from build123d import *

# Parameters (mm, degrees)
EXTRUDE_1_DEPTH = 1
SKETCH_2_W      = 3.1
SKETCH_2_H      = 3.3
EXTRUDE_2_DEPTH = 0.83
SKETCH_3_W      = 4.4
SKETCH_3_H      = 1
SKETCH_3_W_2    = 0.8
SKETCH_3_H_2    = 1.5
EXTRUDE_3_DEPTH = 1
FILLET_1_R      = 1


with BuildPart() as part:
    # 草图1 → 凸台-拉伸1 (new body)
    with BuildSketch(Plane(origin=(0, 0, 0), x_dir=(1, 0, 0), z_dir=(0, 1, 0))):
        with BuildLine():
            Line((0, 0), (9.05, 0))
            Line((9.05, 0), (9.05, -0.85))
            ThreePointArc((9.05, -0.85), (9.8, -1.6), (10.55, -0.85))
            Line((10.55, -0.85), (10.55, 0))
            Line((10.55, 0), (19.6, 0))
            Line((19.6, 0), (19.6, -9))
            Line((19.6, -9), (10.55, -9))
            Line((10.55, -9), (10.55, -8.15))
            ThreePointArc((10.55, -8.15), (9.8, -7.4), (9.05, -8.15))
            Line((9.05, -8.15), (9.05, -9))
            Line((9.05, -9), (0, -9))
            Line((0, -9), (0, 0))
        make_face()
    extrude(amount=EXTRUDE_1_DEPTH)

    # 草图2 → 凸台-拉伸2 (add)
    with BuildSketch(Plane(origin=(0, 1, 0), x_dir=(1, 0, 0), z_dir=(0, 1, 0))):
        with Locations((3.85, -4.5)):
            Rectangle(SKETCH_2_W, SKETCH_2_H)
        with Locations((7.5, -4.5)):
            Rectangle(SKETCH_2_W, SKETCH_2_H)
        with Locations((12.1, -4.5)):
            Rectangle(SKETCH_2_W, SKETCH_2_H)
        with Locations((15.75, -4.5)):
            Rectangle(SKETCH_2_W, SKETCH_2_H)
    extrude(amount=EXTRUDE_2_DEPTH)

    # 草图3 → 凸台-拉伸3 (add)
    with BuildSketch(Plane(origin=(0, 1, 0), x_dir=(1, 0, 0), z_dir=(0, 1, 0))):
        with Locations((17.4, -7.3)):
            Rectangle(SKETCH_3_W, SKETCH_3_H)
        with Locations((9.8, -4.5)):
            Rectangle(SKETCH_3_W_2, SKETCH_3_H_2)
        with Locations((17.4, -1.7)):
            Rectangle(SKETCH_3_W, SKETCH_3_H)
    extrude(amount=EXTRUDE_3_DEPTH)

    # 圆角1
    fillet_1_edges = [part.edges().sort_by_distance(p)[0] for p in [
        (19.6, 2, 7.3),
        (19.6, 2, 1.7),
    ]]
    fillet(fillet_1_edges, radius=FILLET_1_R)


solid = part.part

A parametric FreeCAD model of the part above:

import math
import FreeCAD as App
import Part
import Sketcher

V = App.Vector
Q = App.Units.Quantity


def edges_at(feature, points):
    """Names of the edges that pass closest to the given points."""
    edges = feature.Shape.Edges
    near = lambda p: min(range(len(edges)), key=lambda i: edges[i].distToShape(Part.Vertex(*p))[0])
    return sorted({f"Edge{near(p) + 1}" for p in points})

doc = App.newDocument("Part")
params = doc.addObject("Spreadsheet::Sheet", "Params")
for row, (alias, value) in enumerate([
    ("sketch1_height", "9 mm"),
    ("sketch1_radius", "0.75 mm"),
    ("sketch1_width", "9.05 mm"),
    ("sketch1_height2", "0.85 mm"),
    ("pad1_length", "1 mm"),
    ("sketch2_width", "3.1 mm"),
    ("sketch2_height", "3.3 mm"),
    ("pad2_length", "0.83 mm"),
    ("sketch3_height", "1 mm"),
    ("sketch3_width", "4.4 mm"),
    ("sketch3_width2", "0.8 mm"),
    ("sketch3_height2", "1.5 mm"),
    ("pad3_length", "1 mm"),
    ("fillet_radius", "1 mm"),
], start=1):
    params.set(f"A{row}", alias)
    params.set(f"B{row}", "=" + value)
    params.setAlias(f"B{row}", alias)

body = doc.addObject("PartDesign::Body", "Body")

# Sketch on XZ plane
sketch1 = body.newObject("Sketcher::SketchObject", "Sketch")
sketch1.AttachmentSupport = (doc.getObject("XZ_Plane"), [""])
sketch1.MapMode = "FlatFace"
sketch1.addGeometry([
    Part.LineSegment(V(9.05, 0, 0), V(0, 0, 0)),  # 0
    Part.LineSegment(V(0, 0, 0), V(0, 9, 0)),  # 1
    Part.LineSegment(V(0, 9, 0), V(9.05, 9, 0)),  # 2
    Part.LineSegment(V(9.05, 9, 0), V(9.05, 8.15, 0)),  # 3
    Part.ArcOfCircle(Part.Circle(V(9.8, 8.15, 0), V(0, 0, 1), 0.75), math.radians(180), math.radians(360)),  # 4
    Part.LineSegment(V(10.55, 8.15, 0), V(10.55, 9, 0)),  # 5
    Part.LineSegment(V(10.55, 9, 0), V(19.6, 9, 0)),  # 6
    Part.LineSegment(V(19.6, 9, 0), V(19.6, 0, 0)),  # 7
    Part.LineSegment(V(19.6, 0, 0), V(10.55, 0, 0)),  # 8
    Part.LineSegment(V(10.55, 0, 0), V(10.55, 0.85, 0)),  # 9
    Part.ArcOfCircle(Part.Circle(V(9.8, 0.85, 0), V(0, 0, 1), 0.75), math.radians(0), math.radians(180)),  # 10
    Part.LineSegment(V(9.05, 0.85, 0), V(9.05, 0, 0)),  # 11
], False)
sketch1.addConstraint([
    Sketcher.Constraint("Coincident", 0, 2, 1, 1),
    Sketcher.Constraint("Coincident", 1, 2, 2, 1),
    Sketcher.Constraint("Coincident", 2, 2, 3, 1),
    Sketcher.Constraint("Tangent", 3, 2, 4, 1),
    Sketcher.Constraint("Tangent", 4, 2, 5, 1),
    Sketcher.Constraint("Coincident", 5, 2, 6, 1),
    Sketcher.Constraint("Coincident", 6, 2, 7, 1),
    Sketcher.Constraint("Coincident", 7, 2, 8, 1),
    Sketcher.Constraint("Coincident", 8, 2, 9, 1),
    Sketcher.Constraint("Tangent", 9, 2, 10, 1),
    Sketcher.Constraint("Tangent", 10, 2, 11, 1),
    Sketcher.Constraint("Coincident", 11, 2, 0, 1),
    Sketcher.Constraint("Horizontal", 0),
    Sketcher.Constraint("Vertical", 1),
    Sketcher.Constraint("Horizontal", 2),
    Sketcher.Constraint("Vertical", 3),
    Sketcher.Constraint("Vertical", 5),
    Sketcher.Constraint("Horizontal", 6),
    Sketcher.Constraint("Vertical", 7),
    Sketcher.Constraint("Horizontal", 8),
    Sketcher.Constraint("Vertical", 9),
    Sketcher.Constraint("Vertical", 11),
    Sketcher.Constraint("Coincident", 0, 2, -1, 1),
    Sketcher.Constraint("Equal", 4, 10),
    Sketcher.Constraint("PointOnObject", 7, 2, -1),
    Sketcher.Constraint("Horizontal", 2, 2, 5, 2),
    Sketcher.Constraint("Vertical", 4, 3, 10, 3),
    Sketcher.Constraint("Equal", 2, 6),
    Sketcher.Constraint("Equal", 5, 9),
    Sketcher.Constraint("DistanceY", 1, 1, 1, 2, Q("9 mm")),
    Sketcher.Constraint("Radius", 4, Q("0.75 mm")),
    Sketcher.Constraint("DistanceX", 0, 2, 0, 1, Q("9.05 mm")),
    Sketcher.Constraint("DistanceY", 3, 2, 3, 1, Q("0.85 mm")),
])
sketch1.setExpression("Constraints[29]", "Params.sketch1_height")
sketch1.setExpression("Constraints[30]", "Params.sketch1_radius")
sketch1.setExpression("Constraints[31]", "Params.sketch1_width")
sketch1.setExpression("Constraints[32]", "Params.sketch1_height2")
pad1 = body.newObject("PartDesign::Pad", "Pad")
pad1.Profile = sketch1
pad1.setExpression("Length", "Params.pad1_length")
pad1.Reversed = True

# Sketch on XZ plane
sketch2 = body.newObject("Sketcher::SketchObject", "Sketch001")
sketch2.AttachmentSupport = (doc.getObject("XZ_Plane"), [""])
sketch2.MapMode = "FlatFace"
sketch2.AttachmentOffset = App.Placement(V(0, 0, -1), App.Rotation())
sketch2.addGeometry([
    Part.LineSegment(V(2.3, 2.85, 0), V(2.3, 6.15, 0)),  # 0
    Part.LineSegment(V(2.3, 6.15, 0), V(5.4, 6.15, 0)),  # 1
    Part.LineSegment(V(5.4, 6.15, 0), V(5.4, 2.85, 0)),  # 2
    Part.LineSegment(V(5.4, 2.85, 0), V(2.3, 2.85, 0)),  # 3
    Part.LineSegment(V(5.95, 2.85, 0), V(5.95, 6.15, 0)),  # 4
    Part.LineSegment(V(5.95, 6.15, 0), V(9.05, 6.15, 0)),  # 5
    Part.LineSegment(V(9.05, 6.15, 0), V(9.05, 2.85, 0)),  # 6
    Part.LineSegment(V(9.05, 2.85, 0), V(5.95, 2.85, 0)),  # 7
    Part.LineSegment(V(10.55, 2.85, 0), V(10.55, 6.15, 0)),  # 8
    Part.LineSegment(V(10.55, 6.15, 0), V(13.65, 6.15, 0)),  # 9
    Part.LineSegment(V(13.65, 6.15, 0), V(13.65, 2.85, 0)),  # 10
    Part.LineSegment(V(13.65, 2.85, 0), V(10.55, 2.85, 0)),  # 11
    Part.LineSegment(V(14.2, 2.85, 0), V(14.2, 6.15, 0)),  # 12
    Part.LineSegment(V(14.2, 6.15, 0), V(17.3, 6.15, 0)),  # 13
    Part.LineSegment(V(17.3, 6.15, 0), V(17.3, 2.85, 0)),  # 14
    Part.LineSegment(V(17.3, 2.85, 0), V(14.2, 2.85, 0)),  # 15
], False)
sketch2.addConstraint([
    Sketcher.Constraint("Coincident", 0, 2, 1, 1),
    Sketcher.Constraint("Coincident", 1, 2, 2, 1),
    Sketcher.Constraint("Coincident", 2, 2, 3, 1),
    Sketcher.Constraint("Coincident", 3, 2, 0, 1),
    Sketcher.Constraint("Coincident", 4, 2, 5, 1),
    Sketcher.Constraint("Coincident", 5, 2, 6, 1),
    Sketcher.Constraint("Coincident", 6, 2, 7, 1),
    Sketcher.Constraint("Coincident", 7, 2, 4, 1),
    Sketcher.Constraint("Coincident", 8, 2, 9, 1),
    Sketcher.Constraint("Coincident", 9, 2, 10, 1),
    Sketcher.Constraint("Coincident", 10, 2, 11, 1),
    Sketcher.Constraint("Coincident", 11, 2, 8, 1),
    Sketcher.Constraint("Coincident", 12, 2, 13, 1),
    Sketcher.Constraint("Coincident", 13, 2, 14, 1),
    Sketcher.Constraint("Coincident", 14, 2, 15, 1),
    Sketcher.Constraint("Coincident", 15, 2, 12, 1),
    Sketcher.Constraint("Vertical", 0),
    Sketcher.Constraint("Horizontal", 1),
    Sketcher.Constraint("Vertical", 2),
    Sketcher.Constraint("Horizontal", 3),
    Sketcher.Constraint("Vertical", 4),
    Sketcher.Constraint("Horizontal", 5),
    Sketcher.Constraint("Vertical", 6),
    Sketcher.Constraint("Horizontal", 7),
    Sketcher.Constraint("Vertical", 8),
    Sketcher.Constraint("Horizontal", 9),
    Sketcher.Constraint("Vertical", 10),
    Sketcher.Constraint("Horizontal", 11),
    Sketcher.Constraint("Vertical", 12),
    Sketcher.Constraint("Horizontal", 13),
    Sketcher.Constraint("Vertical", 14),
    Sketcher.Constraint("Horizontal", 15),
    Sketcher.Constraint("Horizontal", 1, 2, 4, 2),
    Sketcher.Constraint("Horizontal", 3, 2, 6, 2),
    Sketcher.Constraint("Horizontal", 5, 2, 8, 2),
    Sketcher.Constraint("Horizontal", 7, 2, 10, 2),
    Sketcher.Constraint("Horizontal", 9, 2, 12, 2),
    Sketcher.Constraint("Horizontal", 11, 2, 14, 2),
    Sketcher.Constraint("Equal", 3, 5),
    Sketcher.Constraint("Equal", 7, 9),
    Sketcher.Constraint("Equal", 11, 13),
    Sketcher.Constraint("DistanceX", 1, 1, 1, 2, Q("3.1 mm")),
    Sketcher.Constraint("DistanceY", 0, 1, 0, 2, Q("3.3 mm")),
    Sketcher.Constraint("DistanceX", -1, 1, 0, 2, Q("2.3 mm")),
    Sketcher.Constraint("DistanceX", -1, 1, 12, 2, Q("14.2 mm")),
    Sketcher.Constraint("DistanceX", 5, 2, 8, 2, Q("1.5 mm")),
    Sketcher.Constraint("DistanceY", -1, 1, 0, 2, Q("6.15 mm")),
    Sketcher.Constraint("DistanceX", -1, 1, 4, 2, Q("5.95 mm")),
])
sketch2.setExpression("Constraints[41]", "Params.sketch2_width")
sketch2.setExpression("Constraints[42]", "Params.sketch2_height")
pad2 = body.newObject("PartDesign::Pad", "Pad001")
pad2.Profile = sketch2
pad2.setExpression("Length", "Params.pad2_length")
pad2.Reversed = True

# Sketch on XZ plane
sketch3 = body.newObject("Sketcher::SketchObject", "Sketch002")
sketch3.AttachmentSupport = (doc.getObject("XZ_Plane"), [""])
sketch3.MapMode = "FlatFace"
sketch3.AttachmentOffset = App.Placement(V(0, 0, -1), App.Rotation())
sketch3.addGeometry([
    Part.LineSegment(V(15.2, 6.8, 0), V(15.2, 7.8, 0)),  # 0
    Part.LineSegment(V(15.2, 7.8, 0), V(19.6, 7.8, 0)),  # 1
    Part.LineSegment(V(19.6, 7.8, 0), V(19.6, 6.8, 0)),  # 2
    Part.LineSegment(V(19.6, 6.8, 0), V(15.2, 6.8, 0)),  # 3
    Part.LineSegment(V(9.4, 3.75, 0), V(9.4, 5.25, 0)),  # 4
    Part.LineSegment(V(9.4, 5.25, 0), V(10.2, 5.25, 0)),  # 5
    Part.LineSegment(V(10.2, 5.25, 0), V(10.2, 3.75, 0)),  # 6
    Part.LineSegment(V(10.2, 3.75, 0), V(9.4, 3.75, 0)),  # 7
    Part.LineSegment(V(15.2, 1.2, 0), V(15.2, 2.2, 0)),  # 8
    Part.LineSegment(V(15.2, 2.2, 0), V(19.6, 2.2, 0)),  # 9
    Part.LineSegment(V(19.6, 2.2, 0), V(19.6, 1.2, 0)),  # 10
    Part.LineSegment(V(19.6, 1.2, 0), V(15.2, 1.2, 0)),  # 11
], False)
sketch3.addConstraint([
    Sketcher.Constraint("Coincident", 0, 2, 1, 1),
    Sketcher.Constraint("Coincident", 1, 2, 2, 1),
    Sketcher.Constraint("Coincident", 2, 2, 3, 1),
    Sketcher.Constraint("Coincident", 3, 2, 0, 1),
    Sketcher.Constraint("Coincident", 4, 2, 5, 1),
    Sketcher.Constraint("Coincident", 5, 2, 6, 1),
    Sketcher.Constraint("Coincident", 6, 2, 7, 1),
    Sketcher.Constraint("Coincident", 7, 2, 4, 1),
    Sketcher.Constraint("Coincident", 8, 2, 9, 1),
    Sketcher.Constraint("Coincident", 9, 2, 10, 1),
    Sketcher.Constraint("Coincident", 10, 2, 11, 1),
    Sketcher.Constraint("Coincident", 11, 2, 8, 1),
    Sketcher.Constraint("Vertical", 0),
    Sketcher.Constraint("Horizontal", 1),
    Sketcher.Constraint("Vertical", 2),
    Sketcher.Constraint("Horizontal", 3),
    Sketcher.Constraint("Vertical", 4),
    Sketcher.Constraint("Horizontal", 5),
    Sketcher.Constraint("Vertical", 6),
    Sketcher.Constraint("Horizontal", 7),
    Sketcher.Constraint("Vertical", 8),
    Sketcher.Constraint("Horizontal", 9),
    Sketcher.Constraint("Vertical", 10),
    Sketcher.Constraint("Horizontal", 11),
    Sketcher.Constraint("Vertical", 3, 2, 8, 2),
    Sketcher.Constraint("Vertical", 2, 2, 9, 2),
    Sketcher.Constraint("Equal", 2, 8),
    Sketcher.Constraint("DistanceY", 0, 1, 0, 2, Q("1 mm")),
    Sketcher.Constraint("DistanceX", 1, 1, 1, 2, Q("4.4 mm")),
    Sketcher.Constraint("DistanceX", 5, 1, 5, 2, Q("0.8 mm")),
    Sketcher.Constraint("DistanceY", 4, 1, 4, 2, Q("1.5 mm")),
    Sketcher.Constraint("DistanceX", 5, 2, 3, 2, Q("5 mm")),
    Sketcher.Constraint("DistanceX", -1, 1, 0, 2, Q("15.2 mm")),
    Sketcher.Constraint("DistanceY", -1, 1, 0, 2, Q("7.8 mm")),
    Sketcher.Constraint("DistanceY", -1, 1, 8, 2, Q("2.2 mm")),
    Sketcher.Constraint("DistanceY", -1, 1, 4, 2, Q("5.25 mm")),
])
sketch3.setExpression("Constraints[27]", "Params.sketch3_height")
sketch3.setExpression("Constraints[28]", "Params.sketch3_width")
sketch3.setExpression("Constraints[29]", "Params.sketch3_width2")
sketch3.setExpression("Constraints[30]", "Params.sketch3_height2")
pad3 = body.newObject("PartDesign::Pad", "Pad002")
pad3.Profile = sketch3
pad3.setExpression("Length", "Params.pad3_length")
pad3.Reversed = True
doc.recompute()

fillet = body.newObject("PartDesign::Fillet", "Fillet")
fillet.Base = (pad3, edges_at(pad3, [(19.6, 2, 7.3), (19.6, 2, 1.7)]))
fillet.setExpression("Radius", "Params.fillet_radius")

doc.recompute()
